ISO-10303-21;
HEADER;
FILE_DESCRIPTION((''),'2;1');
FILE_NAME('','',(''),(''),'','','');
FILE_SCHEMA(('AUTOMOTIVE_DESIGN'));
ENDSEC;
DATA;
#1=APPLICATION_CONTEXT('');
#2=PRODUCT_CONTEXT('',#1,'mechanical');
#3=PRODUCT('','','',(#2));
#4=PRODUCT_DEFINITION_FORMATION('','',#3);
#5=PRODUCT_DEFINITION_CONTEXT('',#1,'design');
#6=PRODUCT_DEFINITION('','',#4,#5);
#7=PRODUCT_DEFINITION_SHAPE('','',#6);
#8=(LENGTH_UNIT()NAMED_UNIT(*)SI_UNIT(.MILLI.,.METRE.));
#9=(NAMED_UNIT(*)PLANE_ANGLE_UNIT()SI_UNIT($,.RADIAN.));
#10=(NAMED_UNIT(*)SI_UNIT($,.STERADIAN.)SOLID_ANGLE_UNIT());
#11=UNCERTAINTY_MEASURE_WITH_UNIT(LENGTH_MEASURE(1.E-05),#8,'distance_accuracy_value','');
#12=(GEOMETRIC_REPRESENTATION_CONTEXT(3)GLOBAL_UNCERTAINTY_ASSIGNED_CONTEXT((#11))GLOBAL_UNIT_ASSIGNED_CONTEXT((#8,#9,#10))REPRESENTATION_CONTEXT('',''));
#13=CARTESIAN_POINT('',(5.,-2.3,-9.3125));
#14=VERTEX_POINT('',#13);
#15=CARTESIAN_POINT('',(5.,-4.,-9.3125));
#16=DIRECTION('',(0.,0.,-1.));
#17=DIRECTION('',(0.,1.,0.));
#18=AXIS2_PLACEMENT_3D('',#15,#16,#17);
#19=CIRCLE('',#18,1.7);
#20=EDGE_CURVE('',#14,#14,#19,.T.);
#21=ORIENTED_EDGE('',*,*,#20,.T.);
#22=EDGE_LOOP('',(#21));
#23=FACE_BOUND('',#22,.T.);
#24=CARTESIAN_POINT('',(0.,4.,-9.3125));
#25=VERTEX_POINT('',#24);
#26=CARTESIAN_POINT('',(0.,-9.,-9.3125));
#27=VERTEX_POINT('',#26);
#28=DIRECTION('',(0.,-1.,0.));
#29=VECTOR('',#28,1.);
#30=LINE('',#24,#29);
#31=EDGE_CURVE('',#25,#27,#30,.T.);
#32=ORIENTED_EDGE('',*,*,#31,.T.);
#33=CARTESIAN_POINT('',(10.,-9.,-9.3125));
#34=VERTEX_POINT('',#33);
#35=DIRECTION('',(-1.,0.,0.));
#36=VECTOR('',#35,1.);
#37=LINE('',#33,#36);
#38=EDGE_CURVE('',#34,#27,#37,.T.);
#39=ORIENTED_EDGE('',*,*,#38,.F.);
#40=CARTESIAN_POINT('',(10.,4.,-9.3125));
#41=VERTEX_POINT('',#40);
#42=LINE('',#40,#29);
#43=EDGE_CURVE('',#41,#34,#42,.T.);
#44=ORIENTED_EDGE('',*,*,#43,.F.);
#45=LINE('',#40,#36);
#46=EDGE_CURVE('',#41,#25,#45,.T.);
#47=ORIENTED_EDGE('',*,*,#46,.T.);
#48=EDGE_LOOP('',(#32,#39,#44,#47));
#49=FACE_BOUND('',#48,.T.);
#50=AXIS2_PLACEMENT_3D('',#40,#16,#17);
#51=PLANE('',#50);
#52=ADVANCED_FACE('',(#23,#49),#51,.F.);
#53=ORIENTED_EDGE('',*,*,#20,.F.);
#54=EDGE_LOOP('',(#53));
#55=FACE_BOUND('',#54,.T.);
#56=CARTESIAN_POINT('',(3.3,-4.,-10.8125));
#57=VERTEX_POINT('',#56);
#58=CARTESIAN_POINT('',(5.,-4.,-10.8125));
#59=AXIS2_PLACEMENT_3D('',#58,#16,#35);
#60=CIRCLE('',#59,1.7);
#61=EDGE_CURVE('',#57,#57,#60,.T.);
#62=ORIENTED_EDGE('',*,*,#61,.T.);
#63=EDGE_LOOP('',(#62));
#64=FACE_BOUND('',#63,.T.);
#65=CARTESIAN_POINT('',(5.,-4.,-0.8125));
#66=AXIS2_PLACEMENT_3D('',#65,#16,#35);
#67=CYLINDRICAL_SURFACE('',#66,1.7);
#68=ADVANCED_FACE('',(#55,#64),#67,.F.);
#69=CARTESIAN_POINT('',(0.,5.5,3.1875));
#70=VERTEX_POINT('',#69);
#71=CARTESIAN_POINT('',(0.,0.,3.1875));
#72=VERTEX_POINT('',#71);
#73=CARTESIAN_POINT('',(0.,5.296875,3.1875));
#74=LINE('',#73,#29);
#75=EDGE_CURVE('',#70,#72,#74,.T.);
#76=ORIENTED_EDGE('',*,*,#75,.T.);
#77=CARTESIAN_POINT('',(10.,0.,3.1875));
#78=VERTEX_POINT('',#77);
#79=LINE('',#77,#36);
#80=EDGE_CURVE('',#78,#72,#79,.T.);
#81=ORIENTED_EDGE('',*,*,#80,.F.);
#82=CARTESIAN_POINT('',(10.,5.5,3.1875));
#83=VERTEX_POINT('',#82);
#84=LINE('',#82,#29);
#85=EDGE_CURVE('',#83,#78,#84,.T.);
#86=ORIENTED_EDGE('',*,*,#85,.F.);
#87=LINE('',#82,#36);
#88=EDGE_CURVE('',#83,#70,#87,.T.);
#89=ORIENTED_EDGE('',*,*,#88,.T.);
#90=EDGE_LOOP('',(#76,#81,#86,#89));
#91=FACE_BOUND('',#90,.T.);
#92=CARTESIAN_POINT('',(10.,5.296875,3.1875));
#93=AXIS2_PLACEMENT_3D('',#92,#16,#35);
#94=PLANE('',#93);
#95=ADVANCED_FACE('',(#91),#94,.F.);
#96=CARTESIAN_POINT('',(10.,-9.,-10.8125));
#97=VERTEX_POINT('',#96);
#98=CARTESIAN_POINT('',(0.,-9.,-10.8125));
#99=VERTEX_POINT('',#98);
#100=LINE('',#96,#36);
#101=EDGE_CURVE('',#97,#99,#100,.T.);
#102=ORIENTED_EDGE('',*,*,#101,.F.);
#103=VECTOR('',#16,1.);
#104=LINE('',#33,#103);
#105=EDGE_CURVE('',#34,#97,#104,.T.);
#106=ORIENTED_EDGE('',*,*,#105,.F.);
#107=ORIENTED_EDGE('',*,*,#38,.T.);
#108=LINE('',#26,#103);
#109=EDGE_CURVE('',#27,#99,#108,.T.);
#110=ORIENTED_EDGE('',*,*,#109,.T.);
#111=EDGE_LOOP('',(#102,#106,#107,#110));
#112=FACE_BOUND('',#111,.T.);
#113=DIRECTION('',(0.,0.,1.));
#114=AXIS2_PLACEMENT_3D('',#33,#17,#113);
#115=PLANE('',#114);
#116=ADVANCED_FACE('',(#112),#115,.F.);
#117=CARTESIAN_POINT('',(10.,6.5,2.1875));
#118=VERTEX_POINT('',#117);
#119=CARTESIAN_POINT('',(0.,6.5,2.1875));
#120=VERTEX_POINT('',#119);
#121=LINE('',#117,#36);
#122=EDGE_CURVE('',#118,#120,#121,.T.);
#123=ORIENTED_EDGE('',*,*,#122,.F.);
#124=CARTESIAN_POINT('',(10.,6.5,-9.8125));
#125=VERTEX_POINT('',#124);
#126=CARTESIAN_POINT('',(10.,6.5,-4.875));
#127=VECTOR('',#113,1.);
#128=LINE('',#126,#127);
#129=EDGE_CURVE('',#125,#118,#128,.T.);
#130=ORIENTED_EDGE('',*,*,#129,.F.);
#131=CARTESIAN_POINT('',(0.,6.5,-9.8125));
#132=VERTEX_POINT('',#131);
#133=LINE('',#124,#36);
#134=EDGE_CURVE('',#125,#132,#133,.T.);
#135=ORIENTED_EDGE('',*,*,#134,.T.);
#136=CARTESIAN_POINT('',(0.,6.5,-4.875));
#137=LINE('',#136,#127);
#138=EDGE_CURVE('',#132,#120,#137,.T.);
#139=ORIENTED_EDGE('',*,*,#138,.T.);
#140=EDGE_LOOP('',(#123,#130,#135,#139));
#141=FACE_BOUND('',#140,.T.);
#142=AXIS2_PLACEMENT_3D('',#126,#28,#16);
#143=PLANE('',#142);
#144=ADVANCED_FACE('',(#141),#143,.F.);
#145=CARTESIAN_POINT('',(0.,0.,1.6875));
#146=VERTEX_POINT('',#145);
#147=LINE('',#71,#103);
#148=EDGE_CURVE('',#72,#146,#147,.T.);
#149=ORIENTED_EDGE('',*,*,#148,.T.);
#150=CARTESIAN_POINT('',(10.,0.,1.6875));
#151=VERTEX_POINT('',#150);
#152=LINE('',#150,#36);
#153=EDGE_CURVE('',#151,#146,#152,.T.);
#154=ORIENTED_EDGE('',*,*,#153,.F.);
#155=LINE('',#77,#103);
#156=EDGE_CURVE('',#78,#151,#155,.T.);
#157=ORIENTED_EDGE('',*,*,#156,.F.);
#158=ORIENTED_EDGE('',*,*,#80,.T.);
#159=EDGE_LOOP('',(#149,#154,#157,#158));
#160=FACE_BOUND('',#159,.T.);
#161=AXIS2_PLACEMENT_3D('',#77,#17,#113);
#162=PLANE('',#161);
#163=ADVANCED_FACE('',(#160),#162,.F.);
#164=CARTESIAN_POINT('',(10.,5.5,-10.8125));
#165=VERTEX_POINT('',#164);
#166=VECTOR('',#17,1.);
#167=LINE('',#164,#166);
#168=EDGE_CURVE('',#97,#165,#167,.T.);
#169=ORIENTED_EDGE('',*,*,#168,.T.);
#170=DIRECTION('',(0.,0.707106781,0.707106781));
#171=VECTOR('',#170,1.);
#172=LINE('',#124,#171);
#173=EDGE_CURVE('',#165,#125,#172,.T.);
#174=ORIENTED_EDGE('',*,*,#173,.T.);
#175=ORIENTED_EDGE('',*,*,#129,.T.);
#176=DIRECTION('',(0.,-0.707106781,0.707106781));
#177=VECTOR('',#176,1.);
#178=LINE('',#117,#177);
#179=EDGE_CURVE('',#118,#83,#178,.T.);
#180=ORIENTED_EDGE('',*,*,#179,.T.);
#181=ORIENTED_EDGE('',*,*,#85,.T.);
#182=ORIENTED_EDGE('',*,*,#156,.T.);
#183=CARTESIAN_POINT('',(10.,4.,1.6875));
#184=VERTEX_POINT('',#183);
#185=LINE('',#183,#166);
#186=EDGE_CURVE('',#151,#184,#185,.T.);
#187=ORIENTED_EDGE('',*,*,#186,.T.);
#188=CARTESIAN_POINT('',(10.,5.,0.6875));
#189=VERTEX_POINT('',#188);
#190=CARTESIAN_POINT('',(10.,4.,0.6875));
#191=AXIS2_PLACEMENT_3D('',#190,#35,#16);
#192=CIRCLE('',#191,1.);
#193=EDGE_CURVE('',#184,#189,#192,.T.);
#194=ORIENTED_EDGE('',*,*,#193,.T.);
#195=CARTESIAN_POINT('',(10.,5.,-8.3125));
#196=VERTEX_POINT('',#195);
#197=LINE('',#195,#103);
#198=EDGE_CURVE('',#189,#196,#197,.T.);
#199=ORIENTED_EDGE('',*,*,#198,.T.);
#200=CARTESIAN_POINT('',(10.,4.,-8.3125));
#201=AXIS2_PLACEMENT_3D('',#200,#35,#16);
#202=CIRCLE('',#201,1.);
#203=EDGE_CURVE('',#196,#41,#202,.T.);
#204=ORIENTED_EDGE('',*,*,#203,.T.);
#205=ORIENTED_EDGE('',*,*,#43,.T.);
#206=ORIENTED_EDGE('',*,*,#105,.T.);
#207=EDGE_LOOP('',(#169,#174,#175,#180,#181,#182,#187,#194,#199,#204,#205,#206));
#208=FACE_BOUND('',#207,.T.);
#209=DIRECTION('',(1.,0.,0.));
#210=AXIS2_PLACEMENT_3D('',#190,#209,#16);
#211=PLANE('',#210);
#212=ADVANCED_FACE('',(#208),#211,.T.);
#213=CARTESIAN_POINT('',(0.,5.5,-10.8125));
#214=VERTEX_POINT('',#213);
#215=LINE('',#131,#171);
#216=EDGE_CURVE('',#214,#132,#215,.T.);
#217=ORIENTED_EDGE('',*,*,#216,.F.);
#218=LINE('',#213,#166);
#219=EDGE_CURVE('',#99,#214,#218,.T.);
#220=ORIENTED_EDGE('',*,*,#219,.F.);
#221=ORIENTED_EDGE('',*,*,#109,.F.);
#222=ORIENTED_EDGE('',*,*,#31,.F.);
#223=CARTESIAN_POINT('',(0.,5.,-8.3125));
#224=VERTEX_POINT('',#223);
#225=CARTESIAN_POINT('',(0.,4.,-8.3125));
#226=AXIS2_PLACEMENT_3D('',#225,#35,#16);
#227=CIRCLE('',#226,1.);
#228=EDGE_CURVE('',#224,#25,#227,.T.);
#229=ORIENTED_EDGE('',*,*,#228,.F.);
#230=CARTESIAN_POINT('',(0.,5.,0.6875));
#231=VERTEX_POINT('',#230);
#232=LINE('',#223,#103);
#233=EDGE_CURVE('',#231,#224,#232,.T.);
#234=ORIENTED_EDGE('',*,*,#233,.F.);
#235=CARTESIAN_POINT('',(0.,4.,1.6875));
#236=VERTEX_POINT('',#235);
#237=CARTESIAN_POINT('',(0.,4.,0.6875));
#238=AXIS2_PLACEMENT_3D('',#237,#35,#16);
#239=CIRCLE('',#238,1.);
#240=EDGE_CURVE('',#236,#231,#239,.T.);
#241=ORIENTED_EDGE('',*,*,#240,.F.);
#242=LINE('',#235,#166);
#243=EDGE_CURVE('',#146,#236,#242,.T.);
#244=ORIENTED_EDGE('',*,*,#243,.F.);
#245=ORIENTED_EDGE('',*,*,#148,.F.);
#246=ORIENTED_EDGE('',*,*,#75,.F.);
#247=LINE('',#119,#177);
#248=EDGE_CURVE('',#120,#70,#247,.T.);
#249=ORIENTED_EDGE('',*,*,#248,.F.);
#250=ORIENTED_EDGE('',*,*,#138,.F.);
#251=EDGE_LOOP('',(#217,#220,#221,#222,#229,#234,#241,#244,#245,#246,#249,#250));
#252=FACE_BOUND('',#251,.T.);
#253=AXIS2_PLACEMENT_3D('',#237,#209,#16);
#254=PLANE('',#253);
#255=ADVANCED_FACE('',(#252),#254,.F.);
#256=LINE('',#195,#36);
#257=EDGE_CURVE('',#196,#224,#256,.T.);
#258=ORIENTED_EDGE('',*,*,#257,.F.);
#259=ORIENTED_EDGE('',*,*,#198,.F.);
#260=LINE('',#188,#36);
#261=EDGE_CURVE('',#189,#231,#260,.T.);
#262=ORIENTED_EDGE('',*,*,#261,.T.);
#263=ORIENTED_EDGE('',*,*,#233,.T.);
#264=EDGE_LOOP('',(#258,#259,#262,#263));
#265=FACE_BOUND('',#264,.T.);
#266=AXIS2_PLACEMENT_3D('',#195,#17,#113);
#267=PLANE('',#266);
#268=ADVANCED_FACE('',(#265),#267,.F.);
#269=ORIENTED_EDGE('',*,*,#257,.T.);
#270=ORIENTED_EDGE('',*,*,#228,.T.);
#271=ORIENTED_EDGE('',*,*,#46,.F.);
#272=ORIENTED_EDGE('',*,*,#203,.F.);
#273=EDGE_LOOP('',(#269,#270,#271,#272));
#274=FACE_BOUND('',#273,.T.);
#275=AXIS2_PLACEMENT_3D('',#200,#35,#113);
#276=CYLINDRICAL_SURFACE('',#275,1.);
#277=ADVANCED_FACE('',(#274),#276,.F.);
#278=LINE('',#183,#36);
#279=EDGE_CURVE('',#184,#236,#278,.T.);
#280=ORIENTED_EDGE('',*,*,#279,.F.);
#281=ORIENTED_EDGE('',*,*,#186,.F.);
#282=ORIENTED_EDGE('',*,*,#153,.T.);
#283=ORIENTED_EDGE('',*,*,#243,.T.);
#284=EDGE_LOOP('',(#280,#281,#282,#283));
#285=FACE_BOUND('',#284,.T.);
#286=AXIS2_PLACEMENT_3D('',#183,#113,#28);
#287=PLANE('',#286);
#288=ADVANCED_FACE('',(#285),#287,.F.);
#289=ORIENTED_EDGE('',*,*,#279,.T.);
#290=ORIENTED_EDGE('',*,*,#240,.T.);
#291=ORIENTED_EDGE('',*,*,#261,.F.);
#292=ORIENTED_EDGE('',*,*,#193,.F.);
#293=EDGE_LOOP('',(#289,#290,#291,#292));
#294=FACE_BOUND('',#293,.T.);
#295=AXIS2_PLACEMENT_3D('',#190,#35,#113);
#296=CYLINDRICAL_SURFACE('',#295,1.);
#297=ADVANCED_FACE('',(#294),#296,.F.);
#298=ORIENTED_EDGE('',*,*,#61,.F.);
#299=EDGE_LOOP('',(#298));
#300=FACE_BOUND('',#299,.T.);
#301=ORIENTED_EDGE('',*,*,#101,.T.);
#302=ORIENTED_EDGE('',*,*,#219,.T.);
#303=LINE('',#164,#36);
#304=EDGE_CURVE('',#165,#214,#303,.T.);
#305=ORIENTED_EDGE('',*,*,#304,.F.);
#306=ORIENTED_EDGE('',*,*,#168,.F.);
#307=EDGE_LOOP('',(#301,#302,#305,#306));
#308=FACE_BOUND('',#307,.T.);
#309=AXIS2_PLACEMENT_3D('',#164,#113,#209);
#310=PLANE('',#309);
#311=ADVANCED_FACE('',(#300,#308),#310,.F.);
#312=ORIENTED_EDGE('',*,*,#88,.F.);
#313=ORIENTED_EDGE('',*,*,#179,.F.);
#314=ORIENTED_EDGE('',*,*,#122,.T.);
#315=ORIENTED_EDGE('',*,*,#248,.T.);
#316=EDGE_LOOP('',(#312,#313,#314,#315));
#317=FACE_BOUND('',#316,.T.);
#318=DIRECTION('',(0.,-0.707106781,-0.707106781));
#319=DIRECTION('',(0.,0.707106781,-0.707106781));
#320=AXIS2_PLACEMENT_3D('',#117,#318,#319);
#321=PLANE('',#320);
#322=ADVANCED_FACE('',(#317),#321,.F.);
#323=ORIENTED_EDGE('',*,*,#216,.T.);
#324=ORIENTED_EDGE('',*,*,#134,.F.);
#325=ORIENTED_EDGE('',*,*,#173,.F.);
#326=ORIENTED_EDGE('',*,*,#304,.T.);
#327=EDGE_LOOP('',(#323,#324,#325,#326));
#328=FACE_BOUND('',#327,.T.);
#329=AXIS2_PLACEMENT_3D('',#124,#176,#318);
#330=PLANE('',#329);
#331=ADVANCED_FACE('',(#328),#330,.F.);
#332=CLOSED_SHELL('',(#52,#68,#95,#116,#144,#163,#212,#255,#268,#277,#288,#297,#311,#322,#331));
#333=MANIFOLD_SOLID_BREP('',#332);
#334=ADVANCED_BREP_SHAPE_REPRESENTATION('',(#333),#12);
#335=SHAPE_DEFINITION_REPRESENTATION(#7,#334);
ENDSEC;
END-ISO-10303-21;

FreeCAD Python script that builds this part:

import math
import FreeCAD as App
import Part
import Sketcher
Q = App.Units.Quantity

doc = App.newDocument("Part")
params = doc.addObject("Spreadsheet::Sheet", "Params")
for row, (alias, value) in enumerate([
    ("sketch1_radius", "1 mm"),
    ("sketch1_width", "4 mm"),
    ("sketch1_width2", "13 mm"),
    ("sketch1_height", "9 mm"),
    ("sketch1_height2", "12 mm"),
    ("pad1_length", "10 mm"),
    ("sketch2_diameter", "3.4 mm"),
    ("pocket1_length", "10 mm"),
], start=1):
    params.set(f"A{row}", alias)
    params.set(f"B{row}", "=" + value)
    params.setAlias(f"B{row}", alias)

body = doc.addObject("PartDesign::Body", "Body")

# Sketch on YZ plane
sketch1 = body.newObject("Sketcher::SketchObject", "Sketch")
sketch1.AttachmentSupport = (doc.getObject("YZ_Plane"), [""])
sketch1.MapMode = "FlatFace"
sketch1.addGeometry([
    Part.LineSegment(App.Vector(6.5, 2.2, 0), App.Vector(5.5, 3.2, 0)),  # 0
    Part.LineSegment(App.Vector(5.5, 3.2, 0), App.Vector(0, 3.2, 0)),  # 1
    Part.LineSegment(App.Vector(0, 3.2, 0), App.Vector(0, 1.7, 0)),  # 2
    Part.LineSegment(App.Vector(0, 1.7, 0), App.Vector(4, 1.7, 0)),  # 3
    Part.ArcOfCircle(Part.Circle(App.Vector(4, 0.7, 0), App.Vector(0, 0, 1), 1), math.radians(0), math.radians(90)),  # 4
    Part.LineSegment(App.Vector(5, 0.7, 0), App.Vector(5, -8.3, 0)),  # 5
    Part.ArcOfCircle(Part.Circle(App.Vector(4, -8.3, 0), App.Vector(0, 0, 1), 1), math.radians(-90), math.radians(0)),  # 6
    Part.LineSegment(App.Vector(4, -9.3, 0), App.Vector(-9, -9.3, 0)),  # 7
    Part.LineSegment(App.Vector(-9, -9.3, 0), App.Vector(-9, -10.8, 0)),  # 8
    Part.LineSegment(App.Vector(-9, -10.8, 0), App.Vector(5.5, -10.8, 0)),  # 9
    Part.LineSegment(App.Vector(5.5, -10.8, 0), App.Vector(6.5, -9.8, 0)),  # 10
    Part.LineSegment(App.Vector(6.5, -9.8, 0), App.Vector(6.5, 2.2, 0)),  # 11
], False)
sketch1.addConstraint([
    Sketcher.Constraint("Coincident", 0, 2, 1, 1),
    Sketcher.Constraint("Coincident", 1, 2, 2, 1),
    Sketcher.Constraint("Coincident", 2, 2, 3, 1),
    Sketcher.Constraint("Tangent", 3, 2, 4, 2),
    Sketcher.Constraint("Tangent", 4, 1, 5, 1),
    Sketcher.Constraint("Tangent", 5, 2, 6, 2),
    Sketcher.Constraint("Tangent", 6, 1, 7, 1),
    Sketcher.Constraint("Coincident", 7, 2, 8, 1),
    Sketcher.Constraint("Coincident", 8, 2, 9, 1),
    Sketcher.Constraint("Coincident", 9, 2, 10, 1),
    Sketcher.Constraint("Coincident", 10, 2, 11, 1),
    Sketcher.Constraint("Coincident", 11, 2, 0, 1),
    Sketcher.Constraint("Horizontal", 1),
    Sketcher.Constraint("Vertical", 2),
    Sketcher.Constraint("Horizontal", 3),
    Sketcher.Constraint("Vertical", 5),
    Sketcher.Constraint("Horizontal", 7),
    Sketcher.Constraint("Vertical", 8),
    Sketcher.Constraint("Horizontal", 9),
    Sketcher.Constraint("Vertical", 11),
    Sketcher.Constraint("Equal", 4, 6),
    Sketcher.Constraint("PointOnObject", 1, 2, -2),
    Sketcher.Constraint("Perpendicular", 0, 10),
    Sketcher.Constraint("Vertical", 0, 2, 9, 2),
    Sketcher.Constraint("Equal", 2, 8),
    Sketcher.Constraint("Equal", 0, 10),
    Sketcher.Constraint("Radius", 4, Q("1 mm")),
    Sketcher.Constraint("DistanceX", 3, 1, 3, 2, Q("4 mm")),
    Sketcher.Constraint("DistanceX", 7, 2, 7, 1, Q("13 mm")),
    Sketcher.Constraint("DistanceY", 5, 2, 5, 1, Q("9 mm")),
    Sketcher.Constraint("DistanceY", 11, 1, 11, 2, Q("12 mm")),
    Sketcher.Constraint("DistanceX", 1, 2, 1, 1, Q("5.5 mm")),
    Sketcher.Constraint("DistanceY", 2, 2, 2, 1, Q("1.5 mm")),
    Sketcher.Constraint("DistanceY", -1, 1, 4, 3, Q("0.6875 mm")),
])
sketch1.setExpression("Constraints[26]", "Params.sketch1_radius")
sketch1.setExpression("Constraints[27]", "Params.sketch1_width")
sketch1.setExpression("Constraints[28]", "Params.sketch1_width2")
sketch1.setExpression("Constraints[29]", "Params.sketch1_height")
sketch1.setExpression("Constraints[30]", "Params.sketch1_height2")
pad1 = body.newObject("PartDesign::Pad", "Pad")
pad1.Profile = sketch1
pad1.setExpression("Length", "Params.pad1_length")

# Sketch on XY plane
sketch2 = body.newObject("Sketcher::SketchObject", "Sketch001")
sketch2.AttachmentSupport = (doc.getObject("XY_Plane"), [""])
sketch2.MapMode = "FlatFace"
sketch2.AttachmentOffset = App.Placement(App.Vector(0, 0, -10.8125), App.Rotation())
sketch2.addGeometry(Part.Circle(App.Vector(5, -4, 0), App.Vector(0, 0, 1), 1.7), False)
sketch2.addConstraint([
    Sketcher.Constraint("Diameter", 0, Q("3.4 mm")),
    Sketcher.Constraint("DistanceX", -1, 1, 0, 3, Q("5 mm")),
    Sketcher.Constraint("DistanceY", 0, 3, -1, 1, Q("4 mm")),
])
sketch2.setExpression("Constraints[0]", "Params.sketch2_diameter")
pocket1 = body.newObject("PartDesign::Pocket", "Pocket")
pocket1.Profile = sketch2
pocket1.setExpression("Length", "Params.pocket1_length")
pocket1.Reversed = True

doc.recompute()
